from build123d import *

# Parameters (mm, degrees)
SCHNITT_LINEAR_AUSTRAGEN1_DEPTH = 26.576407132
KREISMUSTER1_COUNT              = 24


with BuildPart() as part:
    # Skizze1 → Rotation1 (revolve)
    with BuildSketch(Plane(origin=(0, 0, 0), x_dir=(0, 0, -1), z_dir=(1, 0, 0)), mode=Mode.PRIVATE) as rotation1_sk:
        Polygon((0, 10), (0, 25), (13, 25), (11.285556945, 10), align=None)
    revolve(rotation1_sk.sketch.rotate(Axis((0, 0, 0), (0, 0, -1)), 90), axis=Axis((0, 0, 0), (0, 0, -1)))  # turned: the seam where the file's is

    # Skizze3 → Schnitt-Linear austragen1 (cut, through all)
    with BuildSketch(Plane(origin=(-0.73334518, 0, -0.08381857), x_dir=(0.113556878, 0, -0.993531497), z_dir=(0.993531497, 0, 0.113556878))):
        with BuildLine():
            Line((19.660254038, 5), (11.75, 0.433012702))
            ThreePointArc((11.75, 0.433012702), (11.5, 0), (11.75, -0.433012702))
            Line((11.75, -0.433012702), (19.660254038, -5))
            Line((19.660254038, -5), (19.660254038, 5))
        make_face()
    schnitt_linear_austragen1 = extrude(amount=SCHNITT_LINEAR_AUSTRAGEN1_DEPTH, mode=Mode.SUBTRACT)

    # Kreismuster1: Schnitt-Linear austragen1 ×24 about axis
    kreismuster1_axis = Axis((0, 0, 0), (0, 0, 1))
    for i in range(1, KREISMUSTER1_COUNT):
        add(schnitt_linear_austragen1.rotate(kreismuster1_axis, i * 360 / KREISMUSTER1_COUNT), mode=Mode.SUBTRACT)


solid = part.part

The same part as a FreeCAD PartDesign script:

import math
import FreeCAD as App
import Part
import Sketcher
Q = App.Units.Quantity

doc = App.newDocument("Part")
params = doc.addObject("Spreadsheet::Sheet", "Params")
for row, (alias, value) in enumerate([
    ("sketch1_width", "15 mm"),
    ("sketch1_height", "13 mm"),
    ("revolution_angle", "360 deg"),
    ("sketch2_radius", "0.5 mm"),
    ("sketch2_height", "10 mm"),
], start=1):
    params.set(f"A{row}", alias)
    params.set(f"B{row}", "=" + value)
    params.setAlias(f"B{row}", alias)

body = doc.addObject("PartDesign::Body", "Body")

# Sketch on YZ plane
sketch1 = body.newObject("Sketcher::SketchObject", "Sketch")
sketch1.AttachmentSupport = (doc.getObject("YZ_Plane"), [""])
sketch1.MapMode = "FlatFace"
sketch1.addGeometry([
    Part.LineSegment(App.Vector(25, 0, 0), App.Vector(10, 0, 0)),
    Part.LineSegment(App.Vector(10, 0, 0), App.Vector(10, -11, 0)),
    Part.LineSegment(App.Vector(10, -11, 0), App.Vector(25, -13, 0)),
    Part.LineSegment(App.Vector(25, -13, 0), App.Vector(25, 0, 0)),
], False)
sketch1.addConstraint([
    Sketcher.Constraint("Coincident", 0, 2, 1, 1),
    Sketcher.Constraint("Coincident", 1, 2, 2, 1),
    Sketcher.Constraint("Coincident", 2, 2, 3, 1),
    Sketcher.Constraint("Coincident", 3, 2, 0, 1),
    Sketcher.Constraint("Horizontal", 0),
    Sketcher.Constraint("Vertical", 1),
    Sketcher.Constraint("Vertical", 3),
    Sketcher.Constraint("PointOnObject", 0, 2, -1),
    Sketcher.Constraint("DistanceX", 0, 2, 0, 1, 15.0),
    Sketcher.Constraint("DistanceY", 3, 1, 3, 2, 13.0),
    Sketcher.Constraint("DistanceX", -1, 1, 0, 2, 10.0),
    Sketcher.Constraint("Distance", 2, 15.097659),
])
sketch1.setExpression("Constraints[8]", "Params.sketch1_width")
sketch1.setExpression("Constraints[9]", "Params.sketch1_height")
revolution = body.newObject("PartDesign::Revolution", "Revolution")
revolution.Profile = sketch1
revolution.ReferenceAxis = (sketch1, ["V_Axis"])
revolution.setExpression("Angle", "Params.revolution_angle")

# Sketch on an angled plane
sketch2 = body.newObject("Sketcher::SketchObject", "Sketch001")
sketch2.Placement = App.Placement(App.Vector(-0.733345, 0, -0.083819), App.Rotation(App.Vector(0.113556878, 0, -0.993531497), App.Vector(0, 1, 0), App.Vector(0.993531497, 0, 0.113556878), "ZXY"))
sketch2.addGeometry([
    Part.LineSegment(App.Vector(19.7, 5, 0), App.Vector(11.8, 0.4, 0)),
    Part.ArcOfCircle(Part.Circle(App.Vector(12, 0, 0), App.Vector(0, 0, 1), 0.5), math.radians(120), math.radians(240)),
    Part.LineSegment(App.Vector(11.8, -0.4, 0), App.Vector(19.7, -5, 0)),
    Part.LineSegment(App.Vector(19.7, -5, 0), App.Vector(19.7, 5, 0)),
], False)
sketch2.addConstraint([
    Sketcher.Constraint("Tangent", 0, 2, 1, 1),
    Sketcher.Constraint("Tangent", 1, 2, 2, 1),
    Sketcher.Constraint("Coincident", 2, 2, 3, 1),
    Sketcher.Constraint("Coincident", 3, 2, 0, 1),
    Sketcher.Constraint("Vertical", 3),
    Sketcher.Constraint("Symmetric", 0, 2, 1, 2, -1),
    Sketcher.Constraint("Radius", 1, 0.5),
    Sketcher.Constraint("DistanceY", 3, 1, 3, 2, 10.0),
    Sketcher.Constraint("Angle", 0, Q("-150 deg")),
    Sketcher.Constraint("DistanceX", -1, 1, 1, 3, 12.0),
])
sketch2.setExpression("Constraints[6]", "Params.sketch2_radius")
sketch2.setExpression("Constraints[7]", "Params.sketch2_height")
pocket1 = body.newObject("PartDesign::Pocket", "Pocket")
pocket1.Profile = sketch2
pocket1.Type = "ThroughAll"
pocket1.Reversed = True
doc.recompute()

polarpattern = body.newObject("PartDesign::PolarPattern", "PolarPattern")
polarpattern.Originals = [pocket1]
polarpattern.Axis = (doc.getObject("Z_Axis"), [""])
polarpattern.Angle = 360
polarpattern.Occurrences = 24
body.Tip = polarpattern

doc.recompute()
